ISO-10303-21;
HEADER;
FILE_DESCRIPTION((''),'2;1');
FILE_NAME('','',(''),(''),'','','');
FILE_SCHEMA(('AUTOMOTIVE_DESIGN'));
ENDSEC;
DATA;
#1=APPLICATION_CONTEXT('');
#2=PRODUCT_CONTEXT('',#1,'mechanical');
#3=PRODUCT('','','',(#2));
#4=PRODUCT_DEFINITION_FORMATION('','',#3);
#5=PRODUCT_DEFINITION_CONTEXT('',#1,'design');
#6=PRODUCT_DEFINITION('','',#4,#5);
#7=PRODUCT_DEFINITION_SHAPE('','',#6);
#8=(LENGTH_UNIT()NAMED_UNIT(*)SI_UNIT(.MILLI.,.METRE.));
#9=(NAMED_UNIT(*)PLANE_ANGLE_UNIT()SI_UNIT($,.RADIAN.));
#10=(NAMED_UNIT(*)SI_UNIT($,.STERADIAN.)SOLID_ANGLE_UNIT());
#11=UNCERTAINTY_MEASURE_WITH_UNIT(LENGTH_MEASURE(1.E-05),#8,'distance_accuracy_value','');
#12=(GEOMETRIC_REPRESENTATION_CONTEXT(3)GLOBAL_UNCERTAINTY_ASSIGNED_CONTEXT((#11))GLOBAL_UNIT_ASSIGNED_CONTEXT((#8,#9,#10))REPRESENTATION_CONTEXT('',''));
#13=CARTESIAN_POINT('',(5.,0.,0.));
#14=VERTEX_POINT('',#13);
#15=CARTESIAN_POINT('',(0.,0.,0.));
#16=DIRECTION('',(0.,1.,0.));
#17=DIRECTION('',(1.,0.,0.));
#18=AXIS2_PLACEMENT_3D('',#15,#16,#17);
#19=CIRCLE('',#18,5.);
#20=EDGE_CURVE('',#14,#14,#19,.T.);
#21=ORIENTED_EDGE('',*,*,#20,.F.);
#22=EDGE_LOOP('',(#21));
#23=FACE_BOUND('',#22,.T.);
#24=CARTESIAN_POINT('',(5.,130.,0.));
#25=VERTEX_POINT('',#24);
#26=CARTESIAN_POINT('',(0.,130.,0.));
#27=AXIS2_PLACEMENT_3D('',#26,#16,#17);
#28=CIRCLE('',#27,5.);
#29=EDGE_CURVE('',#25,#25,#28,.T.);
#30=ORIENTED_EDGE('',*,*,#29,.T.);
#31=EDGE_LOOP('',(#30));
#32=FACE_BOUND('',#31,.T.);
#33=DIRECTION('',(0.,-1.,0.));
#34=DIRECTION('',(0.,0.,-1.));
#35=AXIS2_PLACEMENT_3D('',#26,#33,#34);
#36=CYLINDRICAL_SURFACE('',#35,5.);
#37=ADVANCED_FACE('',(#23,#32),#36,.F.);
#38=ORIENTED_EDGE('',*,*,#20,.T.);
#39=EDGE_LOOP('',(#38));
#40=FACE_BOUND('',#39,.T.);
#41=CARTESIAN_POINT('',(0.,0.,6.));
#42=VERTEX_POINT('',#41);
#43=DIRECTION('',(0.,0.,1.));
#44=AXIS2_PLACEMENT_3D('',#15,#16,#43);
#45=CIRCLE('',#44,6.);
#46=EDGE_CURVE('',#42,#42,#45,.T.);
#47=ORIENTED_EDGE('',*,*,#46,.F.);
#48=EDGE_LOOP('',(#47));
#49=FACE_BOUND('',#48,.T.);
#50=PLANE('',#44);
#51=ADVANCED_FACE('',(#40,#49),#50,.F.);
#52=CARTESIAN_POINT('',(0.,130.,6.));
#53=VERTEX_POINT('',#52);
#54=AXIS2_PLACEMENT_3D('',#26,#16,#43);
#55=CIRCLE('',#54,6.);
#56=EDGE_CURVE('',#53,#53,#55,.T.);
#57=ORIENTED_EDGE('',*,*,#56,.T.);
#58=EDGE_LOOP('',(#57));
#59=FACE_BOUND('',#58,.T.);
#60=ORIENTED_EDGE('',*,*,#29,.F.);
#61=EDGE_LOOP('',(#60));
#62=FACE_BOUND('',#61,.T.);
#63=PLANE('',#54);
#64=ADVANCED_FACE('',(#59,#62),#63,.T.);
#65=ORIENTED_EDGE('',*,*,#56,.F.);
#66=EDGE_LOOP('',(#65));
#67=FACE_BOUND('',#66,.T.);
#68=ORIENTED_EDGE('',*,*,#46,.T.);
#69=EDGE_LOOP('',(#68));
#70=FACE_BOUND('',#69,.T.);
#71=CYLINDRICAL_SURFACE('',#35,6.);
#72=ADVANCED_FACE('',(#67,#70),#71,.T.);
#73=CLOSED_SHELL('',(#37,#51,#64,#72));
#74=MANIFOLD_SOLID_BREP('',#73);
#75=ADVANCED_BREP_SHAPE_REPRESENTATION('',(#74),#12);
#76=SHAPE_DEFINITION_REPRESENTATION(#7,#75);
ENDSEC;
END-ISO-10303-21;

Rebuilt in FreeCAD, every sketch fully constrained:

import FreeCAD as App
import Part
import Sketcher

V = App.Vector
Q = App.Units.Quantity

doc = App.newDocument("Part")
params = doc.addObject("Spreadsheet::Sheet", "Params")
for row, (alias, value) in enumerate([
    ("sketch1_diameter", "12 mm"),
    ("sketch1_diameter2", "10 mm"),
    ("pad1_length", "130 mm"),
], start=1):
    params.set(f"A{row}", alias)
    params.set(f"B{row}", "=" + value)
    params.setAlias(f"B{row}", alias)

body = doc.addObject("PartDesign::Body", "Body")

sketch1 = body.newObject("Sketcher::SketchObject", "Sketch")
sketch1.AttachmentSupport = (doc.getObject("XZ_Plane"), [""])
sketch1.MapMode = "FlatFace"
sketch1.addGeometry([
    Part.Circle(V(0, 0, 0), V(0, 0, 1), 6),
    Part.Circle(V(0, 0, 0), V(0, 0, 1), 5),
], False)
sketch1.addConstraint([
    Sketcher.Constraint("Coincident", 0, 3, -1, 1),
    Sketcher.Constraint("Coincident", 1, 3, -1, 1),
    Sketcher.Constraint("Diameter", 0, Q("12 mm")),
    Sketcher.Constraint("Diameter", 1, Q("10 mm")),
])
sketch1.setExpression("Constraints[2]", "Params.sketch1_diameter")
sketch1.setExpression("Constraints[3]", "Params.sketch1_diameter2")
pad1 = body.newObject("PartDesign::Pad", "Pad")
pad1.Profile = sketch1
pad1.setExpression("Length", "Params.pad1_length")
pad1.Reversed = True

doc.recompute()
